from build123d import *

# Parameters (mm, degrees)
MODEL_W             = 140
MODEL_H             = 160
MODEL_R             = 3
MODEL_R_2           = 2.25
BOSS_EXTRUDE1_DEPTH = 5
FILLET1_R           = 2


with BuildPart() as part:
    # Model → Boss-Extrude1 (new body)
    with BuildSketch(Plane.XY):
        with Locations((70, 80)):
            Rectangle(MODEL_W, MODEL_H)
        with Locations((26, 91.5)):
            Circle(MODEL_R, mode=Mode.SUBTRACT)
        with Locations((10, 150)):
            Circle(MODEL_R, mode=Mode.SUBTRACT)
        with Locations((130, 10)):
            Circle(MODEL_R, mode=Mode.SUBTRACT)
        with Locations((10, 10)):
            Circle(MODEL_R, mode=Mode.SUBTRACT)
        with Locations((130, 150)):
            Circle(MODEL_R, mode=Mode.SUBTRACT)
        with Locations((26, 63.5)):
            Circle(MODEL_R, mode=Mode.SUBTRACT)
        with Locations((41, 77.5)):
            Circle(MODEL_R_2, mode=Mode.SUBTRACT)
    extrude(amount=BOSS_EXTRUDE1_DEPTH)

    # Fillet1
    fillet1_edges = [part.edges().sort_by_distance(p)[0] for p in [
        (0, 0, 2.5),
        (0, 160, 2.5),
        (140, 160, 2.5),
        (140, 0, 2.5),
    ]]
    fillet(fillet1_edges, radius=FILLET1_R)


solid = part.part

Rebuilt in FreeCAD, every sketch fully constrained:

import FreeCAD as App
import Part
import Sketcher
from FreeCAD import Vector


def edges_at(feature, points):
    """Names of the edges that pass closest to the given points."""
    edges = feature.Shape.Edges
    near = lambda p: min(range(len(edges)), key=lambda i: edges[i].distToShape(Part.Vertex(*p))[0])
    return sorted({f"Edge{near(p) + 1}" for p in points})


def add_polygon(sketch, points):
    """Adds a closed chain of lines whose ends are joined by coincident constraints."""
    first, n = sketch.GeometryCount, len(points)
    for a, b in zip(points, points[1:] + points[:1]):
        sketch.addGeometry(Part.LineSegment(App.Vector(*a, 0), App.Vector(*b, 0)), False)
    for i in range(n):
        sketch.addConstraint(Sketcher.Constraint("Coincident", first + i, 2, first + (i + 1) % n, 1))

doc = App.newDocument("Part")
body = doc.addObject("PartDesign::Body", "Body")

# Sketch on XY plane
sketch1 = doc.addObject("Sketcher::SketchObject", "Sketch")
body.addObject(sketch1)
sketch1.AttachmentSupport = (doc.XY_Plane, [""])
sketch1.MapMode = "FlatFace"
add_polygon(sketch1, [(0, 160), (0, 0), (140, 0), (140, 160)])  # lines 0-3
sketch1.addGeometry(Part.Circle(Vector(10, 10, 0), Vector(0, 0, 1), 3), False)  # 4
sketch1.addGeometry(Part.Circle(Vector(26, 63.5, 0), Vector(0, 0, 1), 3), False)  # 5
sketch1.addGeometry(Part.Circle(Vector(41, 77.5, 0), Vector(0, 0, 1), 2.2), False)  # 6
sketch1.addGeometry(Part.Circle(Vector(130, 10, 0), Vector(0, 0, 1), 3), False)  # 7
sketch1.addGeometry(Part.Circle(Vector(26, 91.5, 0), Vector(0, 0, 1), 3), False)  # 8
sketch1.addGeometry(Part.Circle(Vector(10, 150, 0), Vector(0, 0, 1), 3), False)  # 9
sketch1.addGeometry(Part.Circle(Vector(130, 150, 0), Vector(0, 0, 1), 3), False)  # 10
sketch1.addConstraint(Sketcher.Constraint("Vertical", 0))
sketch1.addConstraint(Sketcher.Constraint("Horizontal", 1))
sketch1.addConstraint(Sketcher.Constraint("Vertical", 2))
sketch1.addConstraint(Sketcher.Constraint("Horizontal", 3))
sketch1.addConstraint(Sketcher.Constraint("Coincident", 0, 2, -1, 1))
sketch1.addConstraint(Sketcher.Constraint("Equal", 4, 5))
sketch1.addConstraint(Sketcher.Constraint("Equal", 5, 7))
sketch1.addConstraint(Sketcher.Constraint("Equal", 7, 8))
sketch1.addConstraint(Sketcher.Constraint("Equal", 8, 9))
sketch1.addConstraint(Sketcher.Constraint("Equal", 9, 10))
sketch1.addConstraint(Sketcher.Constraint("Horizontal", 4, 3, 7, 3))
sketch1.addConstraint(Sketcher.Constraint("Horizontal", 9, 3, 10, 3))
sketch1.addConstraint(Sketcher.Constraint("Vertical", 5, 3, 8, 3))
sketch1.addConstraint(Sketcher.Constraint("Vertical", 4, 3, 9, 3))
sketch1.addConstraint(Sketcher.Constraint("Vertical", 7, 3, 10, 3))
sketch1.addConstraint(Sketcher.Constraint("Diameter", 4, 6.0))
sketch1.addConstraint(Sketcher.Constraint("Diameter", 6, 4.5))
sketch1.addConstraint(Sketcher.Constraint("DistanceX", 1, 1, 1, 2, 140.0))
sketch1.addConstraint(Sketcher.Constraint("DistanceY", 0, 2, 0, 1, 160.0))
sketch1.addConstraint(Sketcher.Constraint("DistanceX", -1, 1, 4, 3, 10.0))
sketch1.addConstraint(Sketcher.Constraint("DistanceY", -1, 1, 4, 3, 10.0))
sketch1.addConstraint(Sketcher.Constraint("DistanceX", -1, 1, 5, 3, 26.0))
sketch1.addConstraint(Sketcher.Constraint("DistanceX", -1, 1, 6, 3, 41.0))
sketch1.addConstraint(Sketcher.Constraint("DistanceX", -1, 1, 7, 3, 130.0))
sketch1.addConstraint(Sketcher.Constraint("DistanceY", -1, 1, 9, 3, 150.0))
sketch1.addConstraint(Sketcher.Constraint("DistanceY", 5, 3, 6, 3, 14.0))
sketch1.addConstraint(Sketcher.Constraint("DistanceY", 6, 3, 8, 3, 14.0))
sketch1.addConstraint(Sketcher.Constraint("DistanceY", -1, 1, 5, 3, 63.5))
pad1 = doc.addObject("PartDesign::Pad", "Pad")
body.addObject(pad1)
pad1.Profile = sketch1
pad1.Length = 5
doc.recompute()

fillet = doc.addObject("PartDesign::Fillet", "Fillet")
body.addObject(fillet)
fillet.Base = (pad1, edges_at(pad1, [
    (0, 0, 2.5),
    (0, 160, 2.5),
    (140, 160, 2.5),
    (140, 0, 2.5),
]))
fillet.Radius = 2

doc.recompute()
